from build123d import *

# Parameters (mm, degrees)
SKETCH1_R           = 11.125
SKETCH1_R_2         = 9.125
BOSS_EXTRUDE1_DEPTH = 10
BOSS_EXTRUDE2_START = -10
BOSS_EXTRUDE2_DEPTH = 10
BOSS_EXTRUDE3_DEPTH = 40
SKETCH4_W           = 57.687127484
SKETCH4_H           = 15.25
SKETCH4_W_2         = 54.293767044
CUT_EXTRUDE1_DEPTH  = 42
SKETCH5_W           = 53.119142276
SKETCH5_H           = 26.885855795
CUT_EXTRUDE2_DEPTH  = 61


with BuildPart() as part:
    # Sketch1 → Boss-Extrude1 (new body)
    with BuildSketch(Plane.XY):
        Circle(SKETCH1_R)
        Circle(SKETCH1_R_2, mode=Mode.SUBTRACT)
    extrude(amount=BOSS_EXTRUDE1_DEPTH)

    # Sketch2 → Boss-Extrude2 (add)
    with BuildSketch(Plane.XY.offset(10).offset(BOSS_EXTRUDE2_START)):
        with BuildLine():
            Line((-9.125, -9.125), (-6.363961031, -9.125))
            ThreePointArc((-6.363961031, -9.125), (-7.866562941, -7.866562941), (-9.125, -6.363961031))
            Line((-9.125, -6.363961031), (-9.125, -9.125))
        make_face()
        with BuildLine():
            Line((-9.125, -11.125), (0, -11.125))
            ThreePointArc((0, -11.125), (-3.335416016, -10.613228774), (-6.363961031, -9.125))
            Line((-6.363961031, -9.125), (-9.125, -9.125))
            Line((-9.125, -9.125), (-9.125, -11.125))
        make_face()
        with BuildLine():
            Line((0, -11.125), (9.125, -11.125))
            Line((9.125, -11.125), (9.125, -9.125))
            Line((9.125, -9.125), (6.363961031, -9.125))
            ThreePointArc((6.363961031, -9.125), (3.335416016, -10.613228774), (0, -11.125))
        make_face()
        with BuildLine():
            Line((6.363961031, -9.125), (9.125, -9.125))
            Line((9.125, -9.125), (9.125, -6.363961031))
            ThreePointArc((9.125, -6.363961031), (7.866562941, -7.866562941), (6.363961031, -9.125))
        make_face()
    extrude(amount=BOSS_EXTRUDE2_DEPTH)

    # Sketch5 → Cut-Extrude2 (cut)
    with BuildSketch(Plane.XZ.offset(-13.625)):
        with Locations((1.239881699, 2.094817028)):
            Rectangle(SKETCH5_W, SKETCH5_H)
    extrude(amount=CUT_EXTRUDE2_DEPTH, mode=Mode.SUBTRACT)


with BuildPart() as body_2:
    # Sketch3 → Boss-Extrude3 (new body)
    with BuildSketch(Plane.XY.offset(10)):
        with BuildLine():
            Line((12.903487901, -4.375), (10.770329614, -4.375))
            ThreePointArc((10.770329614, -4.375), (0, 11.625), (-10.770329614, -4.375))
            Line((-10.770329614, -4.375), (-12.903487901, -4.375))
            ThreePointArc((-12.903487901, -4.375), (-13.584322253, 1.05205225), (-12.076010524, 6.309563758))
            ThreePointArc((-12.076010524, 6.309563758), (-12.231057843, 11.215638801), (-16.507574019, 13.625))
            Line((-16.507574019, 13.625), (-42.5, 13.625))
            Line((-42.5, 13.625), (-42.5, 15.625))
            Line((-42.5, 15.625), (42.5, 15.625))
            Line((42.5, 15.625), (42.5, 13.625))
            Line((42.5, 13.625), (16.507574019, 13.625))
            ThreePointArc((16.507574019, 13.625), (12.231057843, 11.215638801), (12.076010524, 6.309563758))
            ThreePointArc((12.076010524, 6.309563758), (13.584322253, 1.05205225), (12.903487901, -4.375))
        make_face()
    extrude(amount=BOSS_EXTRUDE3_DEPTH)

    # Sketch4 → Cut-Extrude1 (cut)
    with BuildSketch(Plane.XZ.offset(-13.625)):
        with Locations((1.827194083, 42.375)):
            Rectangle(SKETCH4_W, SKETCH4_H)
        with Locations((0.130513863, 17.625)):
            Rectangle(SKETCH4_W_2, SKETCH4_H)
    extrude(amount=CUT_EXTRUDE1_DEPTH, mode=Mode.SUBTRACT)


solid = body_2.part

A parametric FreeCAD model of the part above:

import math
import FreeCAD as App
import Part
import Sketcher
from FreeCAD import Vector


def add_polygon(sketch, points):
    """Adds a closed chain of lines whose ends are joined by coincident constraints."""
    first, n = sketch.GeometryCount, len(points)
    for a, b in zip(points, points[1:] + points[:1]):
        sketch.addGeometry(Part.LineSegment(App.Vector(*a, 0), App.Vector(*b, 0)), False)
    for i in range(n):
        sketch.addConstraint(Sketcher.Constraint("Coincident", first + i, 2, first + (i + 1) % n, 1))

doc = App.newDocument("Part")
params = doc.addObject("Spreadsheet::Sheet", "Params")
for row, (alias, value) in enumerate([
    ("sketch1_diameter", "22.25 mm"),
    ("sketch1_diameter2", "18.25 mm"),
    ("pad1_length", "10 mm"),
    ("pad2_length", "10 mm"),
    ("pocket1_length", "61 mm"),
    ("sketch4_radius", "5 mm"),
    ("sketch4_width", "85 mm"),
    ("sketch4_height", "2 mm"),
    ("pad3_length", "40 mm"),
    ("sketch5_height", "15.25 mm"),
    ("pocket2_length", "42 mm"),
], start=1):
    params.set(f"A{row}", alias)
    params.set(f"B{row}", "=" + value)
    params.setAlias(f"B{row}", alias)

body = doc.addObject("PartDesign::Body", "Body")

# Sketch on XY plane
sketch1 = doc.addObject("Sketcher::SketchObject", "Sketch")
body.addObject(sketch1)
sketch1.AttachmentSupport = (doc.XY_Plane, [""])
sketch1.MapMode = "FlatFace"
sketch1.addGeometry(Part.Circle(Vector(0, 0, 0), Vector(0, 0, 1), 11), False)
sketch1.addGeometry(Part.Circle(Vector(0, 0, 0), Vector(0, 0, 1), 9), False)
sketch1.addConstraint(Sketcher.Constraint("Coincident", 0, 3, -1, 1))
sketch1.addConstraint(Sketcher.Constraint("Coincident", 1, 3, -1, 1))
sketch1.addConstraint(Sketcher.Constraint("Diameter", 0, 22.25))
sketch1.addConstraint(Sketcher.Constraint("Diameter", 1, 18.25))
sketch1.setExpression("Constraints[2]", "Params.sketch1_diameter")
sketch1.setExpression("Constraints[3]", "Params.sketch1_diameter2")
pad1 = doc.addObject("PartDesign::Pad", "Pad")
body.addObject(pad1)
pad1.Profile = sketch1
pad1.setExpression("Length", "Params.pad1_length")

# Sketch on XY plane
sketch2 = doc.addObject("Sketcher::SketchObject", "Sketch001")
body.addObject(sketch2)
sketch2.AttachmentSupport = (doc.XY_Plane, [""])
sketch2.MapMode = "FlatFace"
sketch2.addGeometry(Part.ArcOfCircle(Part.Circle(Vector(0, 0, 0), Vector(0, 0, 1), 11.1), math.radians(-145), math.radians(-125)), False)
sketch2.addGeometry(Part.LineSegment(Vector(-9.1, -6.4, 0), Vector(-9.1, -11.1, 0)), False)
sketch2.addGeometry(Part.LineSegment(Vector(-9.1, -11.1, 0), Vector(0, -11.1, 0)), False)
sketch2.addGeometry(Part.ArcOfCircle(Part.Circle(Vector(0, 0, 0), Vector(0, 0, 1), 11.1), math.radians(-125), math.radians(-90)), False)
sketch2.addGeometry(Part.LineSegment(Vector(0, -11.1, 0), Vector(9.1, -11.1, 0)), False)
sketch2.addGeometry(Part.LineSegment(Vector(9.1, -11.1, 0), Vector(9.1, -6.4, 0)), False)
sketch2.addGeometry(Part.ArcOfCircle(Part.Circle(Vector(0, 0, 0), Vector(0, 0, 1), 11.1), math.radians(-55), math.radians(-35)), False)
sketch2.addGeometry(Part.ArcOfCircle(Part.Circle(Vector(0, 0, 0), Vector(0, 0, 1), 11.1), math.radians(-90), math.radians(-55)), False)
sketch2.addConstraint(Sketcher.Constraint("Coincident", 0, 1, 1, 1))
sketch2.addConstraint(Sketcher.Constraint("Coincident", 1, 2, 2, 1))
sketch2.addConstraint(Sketcher.Constraint("Tangent", 2, 2, 3, 2))
sketch2.addConstraint(Sketcher.Constraint("Tangent", 3, 1, 0, 2))
sketch2.addConstraint(Sketcher.Constraint("Coincident", 4, 2, 5, 1))
sketch2.addConstraint(Sketcher.Constraint("Coincident", 5, 2, 6, 2))
sketch2.addConstraint(Sketcher.Constraint("Tangent", 6, 1, 7, 2))
sketch2.addConstraint(Sketcher.Constraint("Tangent", 7, 1, 4, 1))
sketch2.addConstraint(Sketcher.Constraint("Vertical", 1))
sketch2.addConstraint(Sketcher.Constraint("Horizontal", 2))
sketch2.addConstraint(Sketcher.Constraint("Horizontal", 4))
sketch2.addConstraint(Sketcher.Constraint("Vertical", 5))
sketch2.addConstraint(Sketcher.Constraint("Coincident", 0, 3, -1, 1))
sketch2.addConstraint(Sketcher.Constraint("Coincident", 6, 3, -1, 1))
sketch2.addConstraint(Sketcher.Constraint("Coincident", 7, 1, 2, 2))
sketch2.addConstraint(Sketcher.Constraint("Equal", 0, 3))
sketch2.addConstraint(Sketcher.Constraint("Horizontal", 0, 1, 5, 2))
sketch2.addConstraint(Sketcher.Constraint("Horizontal", 3, 1, 6, 1))
sketch2.addConstraint(Sketcher.Constraint("Radius", 0, 11.125))
sketch2.addConstraint(Sketcher.Constraint("DistanceY", 1, 2, 3, 1, 2.0))
sketch2.addConstraint(Sketcher.Constraint("DistanceX", 2, 1, 2, 2, 9.125))
pad2 = doc.addObject("PartDesign::Pad", "Pad001")
body.addObject(pad2)
pad2.Profile = sketch2
pad2.setExpression("Length", "Params.pad2_length")

# Sketch on XZ plane
sketch3 = doc.addObject("Sketcher::SketchObject", "Sketch002")
body.addObject(sketch3)
sketch3.AttachmentSupport = (doc.XZ_Plane, [""])
sketch3.MapMode = "FlatFace"
sketch3.AttachmentOffset = App.Placement(Vector(0, 0, -13.625), App.Rotation())
add_polygon(sketch3, [(-25, 16), (-25, -11), (28, -11), (28, 16)])  # lines 0-3
sketch3.addConstraint(Sketcher.Constraint("Vertical", 0))
sketch3.addConstraint(Sketcher.Constraint("Horizontal", 1))
sketch3.addConstraint(Sketcher.Constraint("Vertical", 2))
sketch3.addConstraint(Sketcher.Constraint("Horizontal", 3))
sketch3.addConstraint(Sketcher.Constraint("DistanceX", 1, 1, 1, 2, 53.119142))
sketch3.addConstraint(Sketcher.Constraint("DistanceY", 0, 2, 0, 1, 26.885856))
sketch3.addConstraint(Sketcher.Constraint("DistanceX", 0, 2, -1, 1, 25.319689))
sketch3.addConstraint(Sketcher.Constraint("DistanceY", 0, 2, -1, 1, 11.348111))
pocket1 = doc.addObject("PartDesign::Pocket", "Pocket")
body.addObject(pocket1)
pocket1.Profile = sketch3
pocket1.setExpression("Length", "Params.pocket1_length")
pocket1.Reversed = True
body2 = doc.addObject("PartDesign::Body", "Body001")

# Sketch on XY plane
sketch4 = doc.addObject("Sketcher::SketchObject", "Sketch003")
body2.addObject(sketch4)
sketch4.AttachmentSupport = (doc.getObject("XY_Plane001"), [""])
sketch4.MapMode = "FlatFace"
sketch4.AttachmentOffset = App.Placement(Vector(0, 0, 10), App.Rotation())
sketch4.addGeometry(Part.LineSegment(Vector(10.8, -4.4, 0), Vector(12.9, -4.4, 0)), False)
sketch4.addGeometry(Part.ArcOfCircle(Part.Circle(Vector(0, 0, 0), Vector(0, 0, 1), 13.6), math.radians(-19), math.radians(28)), False)
sketch4.addGeometry(Part.ArcOfCircle(Part.Circle(Vector(16.5, 8.6, 0), Vector(0, 0, 1), 5), math.radians(90), math.radians(208)), False)
sketch4.addGeometry(Part.LineSegment(Vector(16.5, 13.6, 0), Vector(42.5, 13.6, 0)), False)
sketch4.addGeometry(Part.LineSegment(Vector(42.5, 13.6, 0), Vector(42.5, 15.6, 0)), False)
sketch4.addGeometry(Part.LineSegment(Vector(42.5, 15.6, 0), Vector(-42.5, 15.6, 0)), False)
sketch4.addGeometry(Part.LineSegment(Vector(-42.5, 15.6, 0), Vector(-42.5, 13.6, 0)), False)
sketch4.addGeometry(Part.LineSegment(Vector(-42.5, 13.6, 0), Vector(-16.5, 13.6, 0)), False)
sketch4.addGeometry(Part.ArcOfCircle(Part.Circle(Vector(-16.5, 8.6, 0), Vector(0, 0, 1), 5), math.radians(-28), math.radians(90)), False)
sketch4.addGeometry(Part.ArcOfCircle(Part.Circle(Vector(0, 0, 0), Vector(0, 0, 1), 13.6), math.radians(152), math.radians(199)), False)
sketch4.addGeometry(Part.LineSegment(Vector(-12.9, -4.4, 0), Vector(-10.8, -4.4, 0)), False)
sketch4.addGeometry(Part.ArcOfCircle(Part.Circle(Vector(0, 0, 0), Vector(0, 0, 1), 11.6), math.radians(-22), math.radians(202)), False)
sketch4.addConstraint(Sketcher.Constraint("Coincident", 0, 2, 1, 1))
sketch4.addConstraint(Sketcher.Constraint("Tangent", 1, 2, 2, 2))
sketch4.addConstraint(Sketcher.Constraint("Tangent", 2, 1, 3, 1))
sketch4.addConstraint(Sketcher.Constraint("Coincident", 3, 2, 4, 1))
sketch4.addConstraint(Sketcher.Constraint("Coincident", 4, 2, 5, 1))
sketch4.addConstraint(Sketcher.Constraint("Coincident", 5, 2, 6, 1))
sketch4.addConstraint(Sketcher.Constraint("Coincident", 6, 2, 7, 1))
sketch4.addConstraint(Sketcher.Constraint("Tangent", 7, 2, 8, 2))
sketch4.addConstraint(Sketcher.Constraint("Tangent", 8, 1, 9, 1))
sketch4.addConstraint(Sketcher.Constraint("Coincident", 9, 2, 10, 1))
sketch4.addConstraint(Sketcher.Constraint("Coincident", 10, 2, 11, 2))
sketch4.addConstraint(Sketcher.Constraint("Coincident", 11, 1, 0, 1))
sketch4.addConstraint(Sketcher.Constraint("Horizontal", 0))
sketch4.addConstraint(Sketcher.Constraint("Horizontal", 3))
sketch4.addConstraint(Sketcher.Constraint("Vertical", 4))
sketch4.addConstraint(Sketcher.Constraint("Horizontal", 5))
sketch4.addConstraint(Sketcher.Constraint("Vertical", 6))
sketch4.addConstraint(Sketcher.Constraint("Horizontal", 7))
sketch4.addConstraint(Sketcher.Constraint("Horizontal", 10))
sketch4.addConstraint(Sketcher.Constraint("Coincident", 1, 3, -1, 1))
sketch4.addConstraint(Sketcher.Constraint("Coincident", 9, 3, -1, 1))
sketch4.addConstraint(Sketcher.Constraint("Coincident", 11, 3, -1, 1))
sketch4.addConstraint(Sketcher.Constraint("Equal", 2, 8))
sketch4.addConstraint(Sketcher.Constraint("Equal", 1, 9))
sketch4.addConstraint(Sketcher.Constraint("Symmetric", 3, 2, 6, 2, -2))
sketch4.addConstraint(Sketcher.Constraint("Horizontal", 0, 2, 9, 2))
sketch4.addConstraint(Sketcher.Constraint("Radius", 2, 5.0))
sketch4.addConstraint(Sketcher.Constraint("DistanceX", 5, 2, 5, 1, 85.0))
sketch4.addConstraint(Sketcher.Constraint("DistanceY", 4, 1, 4, 2, 2.0))
sketch4.addConstraint(Sketcher.Constraint("Radius", 1, 13.625))
sketch4.addConstraint(Sketcher.Constraint("Radius", 11, 11.625))
sketch4.addConstraint(Sketcher.Constraint("DistanceY", 0, 2, 2, 3, 13.0))
sketch4.addConstraint(Sketcher.Constraint("DistanceY", -1, 1, 2, 3, 8.625))
sketch4.setExpression("Constraints[26]", "Params.sketch4_radius")
sketch4.setExpression("Constraints[27]", "Params.sketch4_width")
sketch4.setExpression("Constraints[28]", "Params.sketch4_height")
pad3 = doc.addObject("PartDesign::Pad", "Pad002")
body2.addObject(pad3)
pad3.Profile = sketch4
pad3.setExpression("Length", "Params.pad3_length")

# Sketch on XZ plane
sketch5 = doc.addObject("Sketcher::SketchObject", "Sketch004")
body2.addObject(sketch5)
sketch5.AttachmentSupport = (doc.getObject("XZ_Plane001"), [""])
sketch5.MapMode = "FlatFace"
sketch5.AttachmentOffset = App.Placement(Vector(0, 0, -13.625), App.Rotation())
add_polygon(sketch5, [(-27, 50), (-27, 35), (31, 35), (31, 50)])  # lines 0-3
add_polygon(sketch5, [(-27, 25), (-27, 10), (27, 10), (27, 25)])  # lines 4-7
sketch5.addConstraint(Sketcher.Constraint("Vertical", 0))
sketch5.addConstraint(Sketcher.Constraint("Horizontal", 1))
sketch5.addConstraint(Sketcher.Constraint("Vertical", 2))
sketch5.addConstraint(Sketcher.Constraint("Horizontal", 3))
sketch5.addConstraint(Sketcher.Constraint("Vertical", 4))
sketch5.addConstraint(Sketcher.Constraint("Horizontal", 5))
sketch5.addConstraint(Sketcher.Constraint("Vertical", 6))
sketch5.addConstraint(Sketcher.Constraint("Horizontal", 7))
sketch5.addConstraint(Sketcher.Constraint("Vertical", 3, 2, 4, 2))
sketch5.addConstraint(Sketcher.Constraint("Equal", 2, 4))
sketch5.addConstraint(Sketcher.Constraint("DistanceY", -1, 1, 2, 2, 50.0))
sketch5.addConstraint(Sketcher.Constraint("DistanceY", -1, 1, 4, 2, 10.0))
sketch5.addConstraint(Sketcher.Constraint("DistanceY", 0, 2, 0, 1, 15.25))
sketch5.addConstraint(Sketcher.Constraint("DistanceX", 1, 1, 1, 2, 57.687127))
sketch5.addConstraint(Sketcher.Constraint("DistanceX", 5, 1, 5, 2, 54.293767))
sketch5.addConstraint(Sketcher.Constraint("DistanceX", 0, 2, -1, 1, 27.01637))
sketch5.setExpression("Constraints[20]", "Params.sketch5_height")
pocket2 = doc.addObject("PartDesign::Pocket", "Pocket001")
body2.addObject(pocket2)
pocket2.Profile = sketch5
pocket2.setExpression("Length", "Params.pocket2_length")
pocket2.Reversed = True

doc.recompute()
